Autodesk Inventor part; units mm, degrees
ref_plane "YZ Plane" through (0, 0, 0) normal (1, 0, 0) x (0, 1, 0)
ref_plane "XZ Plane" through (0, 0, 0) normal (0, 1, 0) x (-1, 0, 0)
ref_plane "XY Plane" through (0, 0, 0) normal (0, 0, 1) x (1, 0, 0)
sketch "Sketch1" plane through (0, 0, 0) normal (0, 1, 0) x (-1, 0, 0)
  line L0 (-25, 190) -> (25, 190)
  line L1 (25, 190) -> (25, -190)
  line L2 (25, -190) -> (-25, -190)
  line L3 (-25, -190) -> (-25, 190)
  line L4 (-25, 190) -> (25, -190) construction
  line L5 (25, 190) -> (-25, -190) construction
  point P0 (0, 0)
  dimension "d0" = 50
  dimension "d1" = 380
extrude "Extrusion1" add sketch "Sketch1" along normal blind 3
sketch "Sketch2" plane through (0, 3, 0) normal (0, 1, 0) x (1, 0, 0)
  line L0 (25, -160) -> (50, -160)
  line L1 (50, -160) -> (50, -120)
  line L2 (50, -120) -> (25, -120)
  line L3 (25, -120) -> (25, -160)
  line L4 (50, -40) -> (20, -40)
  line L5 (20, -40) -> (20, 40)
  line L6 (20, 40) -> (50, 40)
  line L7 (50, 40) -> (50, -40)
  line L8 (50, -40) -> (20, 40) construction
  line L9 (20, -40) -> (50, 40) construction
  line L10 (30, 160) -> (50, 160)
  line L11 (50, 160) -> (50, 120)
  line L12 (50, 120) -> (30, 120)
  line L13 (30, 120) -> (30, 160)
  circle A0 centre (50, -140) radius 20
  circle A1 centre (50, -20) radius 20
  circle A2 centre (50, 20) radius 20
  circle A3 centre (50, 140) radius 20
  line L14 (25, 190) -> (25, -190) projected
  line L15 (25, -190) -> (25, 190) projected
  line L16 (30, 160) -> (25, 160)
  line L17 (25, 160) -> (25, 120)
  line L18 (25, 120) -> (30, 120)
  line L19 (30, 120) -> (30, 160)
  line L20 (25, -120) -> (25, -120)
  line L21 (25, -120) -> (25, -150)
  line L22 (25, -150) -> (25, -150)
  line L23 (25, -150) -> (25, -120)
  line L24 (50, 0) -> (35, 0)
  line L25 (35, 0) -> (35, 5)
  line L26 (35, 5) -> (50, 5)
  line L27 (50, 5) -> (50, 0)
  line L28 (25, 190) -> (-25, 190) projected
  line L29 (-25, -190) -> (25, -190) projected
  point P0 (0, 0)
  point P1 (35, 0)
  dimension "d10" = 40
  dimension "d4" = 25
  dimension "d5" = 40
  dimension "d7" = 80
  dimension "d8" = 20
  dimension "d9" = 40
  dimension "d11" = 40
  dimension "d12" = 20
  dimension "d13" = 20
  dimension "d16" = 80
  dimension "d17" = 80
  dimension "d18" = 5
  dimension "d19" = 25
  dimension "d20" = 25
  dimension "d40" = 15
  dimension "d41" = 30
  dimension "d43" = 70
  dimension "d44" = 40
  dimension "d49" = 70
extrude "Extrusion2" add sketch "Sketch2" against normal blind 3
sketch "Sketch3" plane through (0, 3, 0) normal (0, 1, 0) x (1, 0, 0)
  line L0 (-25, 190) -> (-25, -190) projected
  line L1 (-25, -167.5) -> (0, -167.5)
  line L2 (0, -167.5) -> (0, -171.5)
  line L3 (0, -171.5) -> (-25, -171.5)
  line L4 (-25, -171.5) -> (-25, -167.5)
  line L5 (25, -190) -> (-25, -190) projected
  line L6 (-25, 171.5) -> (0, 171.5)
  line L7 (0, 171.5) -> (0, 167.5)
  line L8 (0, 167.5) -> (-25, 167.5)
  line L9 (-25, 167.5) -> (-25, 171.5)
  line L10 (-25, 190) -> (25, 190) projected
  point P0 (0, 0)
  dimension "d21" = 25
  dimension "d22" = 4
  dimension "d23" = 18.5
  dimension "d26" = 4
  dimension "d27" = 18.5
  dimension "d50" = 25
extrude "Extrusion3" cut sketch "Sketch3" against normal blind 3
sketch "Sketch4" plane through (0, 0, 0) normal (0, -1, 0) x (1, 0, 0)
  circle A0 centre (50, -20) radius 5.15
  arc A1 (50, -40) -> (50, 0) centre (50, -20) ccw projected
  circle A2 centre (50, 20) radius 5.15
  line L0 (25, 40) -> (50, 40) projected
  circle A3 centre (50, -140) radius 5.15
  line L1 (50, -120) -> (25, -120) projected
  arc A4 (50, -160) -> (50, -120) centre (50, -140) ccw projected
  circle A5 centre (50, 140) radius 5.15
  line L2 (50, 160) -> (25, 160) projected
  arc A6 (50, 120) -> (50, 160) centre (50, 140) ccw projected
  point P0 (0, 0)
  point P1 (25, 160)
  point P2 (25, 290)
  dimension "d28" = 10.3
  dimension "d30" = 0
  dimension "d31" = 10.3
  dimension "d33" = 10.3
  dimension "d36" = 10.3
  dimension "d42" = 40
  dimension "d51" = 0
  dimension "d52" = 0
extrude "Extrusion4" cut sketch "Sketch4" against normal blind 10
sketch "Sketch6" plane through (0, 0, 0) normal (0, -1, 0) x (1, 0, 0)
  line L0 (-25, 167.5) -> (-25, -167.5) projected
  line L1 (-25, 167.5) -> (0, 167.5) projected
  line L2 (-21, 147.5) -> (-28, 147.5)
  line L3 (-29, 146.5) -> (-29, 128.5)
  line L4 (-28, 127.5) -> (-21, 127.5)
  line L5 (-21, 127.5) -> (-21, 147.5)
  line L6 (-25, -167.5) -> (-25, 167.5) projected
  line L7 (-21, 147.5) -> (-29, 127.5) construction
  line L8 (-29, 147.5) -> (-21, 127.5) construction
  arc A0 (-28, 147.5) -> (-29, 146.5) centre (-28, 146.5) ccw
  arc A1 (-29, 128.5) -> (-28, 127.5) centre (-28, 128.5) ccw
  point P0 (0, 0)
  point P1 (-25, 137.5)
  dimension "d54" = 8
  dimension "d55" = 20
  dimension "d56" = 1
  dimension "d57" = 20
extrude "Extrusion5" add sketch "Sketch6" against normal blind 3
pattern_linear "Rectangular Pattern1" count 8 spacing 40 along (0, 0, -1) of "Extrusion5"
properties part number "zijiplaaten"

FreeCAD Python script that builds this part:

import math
import FreeCAD as App
import Part
import Sketcher
from FreeCAD import Vector

doc = App.newDocument("Part")
body = doc.addObject("PartDesign::Body", "Body")

sketch1 = body.newObject("Sketcher::SketchObject", "Sketch")
sketch1.AttachmentSupport = (doc.getObject("XZ_Plane"), [""])
sketch1.MapMode = "FlatFace"
sketch1.addGeometry([
    Part.LineSegment(Vector(-25, 190, 0), Vector(25, 190, 0)),
    Part.LineSegment(Vector(25, 190, 0), Vector(25, -190, 0)),
    Part.LineSegment(Vector(25, -190, 0), Vector(-25, -190, 0)),
    Part.LineSegment(Vector(-25, -190, 0), Vector(-25, 190, 0)),
], False)
sketch1.addConstraint([
    Sketcher.Constraint("Coincident", 0, 2, 1, 1),
    Sketcher.Constraint("Coincident", 1, 2, 2, 1),
    Sketcher.Constraint("Coincident", 2, 2, 3, 1),
    Sketcher.Constraint("Coincident", 3, 2, 0, 1),
    Sketcher.Constraint("Horizontal", 0),
    Sketcher.Constraint("Vertical", 1),
    Sketcher.Constraint("Horizontal", 2),
    Sketcher.Constraint("Vertical", 3),
    Sketcher.Constraint("Symmetric", 0, 2, 2, 2, -1, 1),
    Sketcher.Constraint("DistanceX", 0, 1, 0, 2, 50.0),
    Sketcher.Constraint("DistanceY", 1, 2, 1, 1, 380.0),
])
pad1 = body.newObject("PartDesign::Pad", "Pad")
pad1.Profile = sketch1
pad1.Length = 3
pad1.Reversed = True

sketch2 = body.newObject("Sketcher::SketchObject", "Sketch001")
sketch2.AttachmentSupport = (doc.getObject("XZ_Plane"), [""])
sketch2.MapMode = "FlatFace"
sketch2.AttachmentOffset = App.Placement(Vector(0, 0, -3), App.Rotation())
sketch2.addGeometry([
    Part.LineSegment(Vector(25, 160, 0), Vector(50, 160, 0)),
    Part.ArcOfCircle(Part.Circle(Vector(50, 140, 0), Vector(0, 0, 1), 20), math.radians(-90), math.radians(90)),
    Part.LineSegment(Vector(50, 120, 0), Vector(25, 120, 0)),
    Part.LineSegment(Vector(25, 120, 0), Vector(25, 160, 0)),
    Part.LineSegment(Vector(25, -160, 0), Vector(25, -120, 0)),
    Part.LineSegment(Vector(25, -120, 0), Vector(50, -120, 0)),
    Part.ArcOfCircle(Part.Circle(Vector(50, -140, 0), Vector(0, 0, 1), 20), math.radians(-90), math.radians(90)),
    Part.LineSegment(Vector(50, -160, 0), Vector(25, -160, 0)),
    Part.LineSegment(Vector(20, 40, 0), Vector(50, 40, 0)),
    Part.ArcOfCircle(Part.Circle(Vector(50, 20, 0), Vector(0, 0, 1), 20), math.radians(-90), math.radians(90)),
    Part.ArcOfCircle(Part.Circle(Vector(50, -20, 0), Vector(0, 0, 1), 20), math.radians(-90), math.radians(90)),
    Part.LineSegment(Vector(50, -40, 0), Vector(20, -40, 0)),
    Part.LineSegment(Vector(20, -40, 0), Vector(20, 40, 0)),
], False)
sketch2.addConstraint([
    Sketcher.Constraint("Tangent", 0, 2, 1, 2),
    Sketcher.Constraint("Tangent", 1, 1, 2, 1),
    Sketcher.Constraint("Coincident", 2, 2, 3, 1),
    Sketcher.Constraint("Coincident", 3, 2, 0, 1),
    Sketcher.Constraint("Coincident", 4, 2, 5, 1),
    Sketcher.Constraint("Tangent", 5, 2, 6, 2),
    Sketcher.Constraint("Tangent", 6, 1, 7, 1),
    Sketcher.Constraint("Coincident", 7, 2, 4, 1),
    Sketcher.Constraint("Tangent", 8, 2, 9, 2),
    Sketcher.Constraint("Tangent", 9, 1, 10, 2),
    Sketcher.Constraint("Tangent", 10, 1, 11, 1),
    Sketcher.Constraint("Coincident", 11, 2, 12, 1),
    Sketcher.Constraint("Coincident", 12, 2, 8, 1),
    Sketcher.Constraint("Horizontal", 0),
    Sketcher.Constraint("Horizontal", 2),
    Sketcher.Constraint("Vertical", 3),
    Sketcher.Constraint("Vertical", 4),
    Sketcher.Constraint("Horizontal", 5),
    Sketcher.Constraint("Horizontal", 7),
    Sketcher.Constraint("Horizontal", 8),
    Sketcher.Constraint("Horizontal", 11),
    Sketcher.Constraint("Vertical", 12),
    Sketcher.Constraint("Equal", 1, 6),
    Sketcher.Constraint("Equal", 6, 9),
    Sketcher.Constraint("Equal", 9, 10),
    Sketcher.Constraint("Symmetric", 1, 3, 6, 3, -1),
    Sketcher.Constraint("Symmetric", 9, 3, 10, 3, -1),
    Sketcher.Constraint("Vertical", 6, 3, 9, 3),
    Sketcher.Constraint("Vertical", 3, 2, 4, 2),
    Sketcher.Constraint("Radius", 1, 20.0),
    Sketcher.Constraint("DistanceX", 0, 1, 0, 2, 25.0),
    Sketcher.Constraint("DistanceX", 8, 1, 8, 2, 30.0),
    Sketcher.Constraint("DistanceX", -1, 1, 2, 2, 25.0),
    Sketcher.Constraint("DistanceY", 8, 2, 1, 1, 80.0),
])
pad2 = body.newObject("PartDesign::Pad", "Pad001")
pad2.Profile = sketch2
pad2.Length = 3

sketch3 = body.newObject("Sketcher::SketchObject", "Sketch002")
sketch3.AttachmentSupport = (doc.getObject("XZ_Plane"), [""])
sketch3.MapMode = "FlatFace"
sketch3.AttachmentOffset = App.Placement(Vector(0, 0, -3), App.Rotation())
sketch3.addGeometry([
    Part.LineSegment(Vector(0, -171.5, 0), Vector(-25, -171.5, 0)),
    Part.LineSegment(Vector(-25, -171.5, 0), Vector(-25, -167.5, 0)),
    Part.LineSegment(Vector(-25, -167.5, 0), Vector(0, -167.5, 0)),
    Part.LineSegment(Vector(0, -167.5, 0), Vector(0, -171.5, 0)),
    Part.LineSegment(Vector(0, 167.5, 0), Vector(-25, 167.5, 0)),
    Part.LineSegment(Vector(-25, 167.5, 0), Vector(-25, 171.5, 0)),
    Part.LineSegment(Vector(-25, 171.5, 0), Vector(0, 171.5, 0)),
    Part.LineSegment(Vector(0, 171.5, 0), Vector(0, 167.5, 0)),
], False)
sketch3.addConstraint([
    Sketcher.Constraint("Coincident", 0, 2, 1, 1),
    Sketcher.Constraint("Coincident", 1, 2, 2, 1),
    Sketcher.Constraint("Coincident", 2, 2, 3, 1),
    Sketcher.Constraint("Coincident", 3, 2, 0, 1),
    Sketcher.Constraint("Coincident", 4, 2, 5, 1),
    Sketcher.Constraint("Coincident", 5, 2, 6, 1),
    Sketcher.Constraint("Coincident", 6, 2, 7, 1),
    Sketcher.Constraint("Coincident", 7, 2, 4, 1),
    Sketcher.Constraint("Horizontal", 0),
    Sketcher.Constraint("Vertical", 1),
    Sketcher.Constraint("Horizontal", 2),
    Sketcher.Constraint("Vertical", 3),
    Sketcher.Constraint("Horizontal", 4),
    Sketcher.Constraint("Vertical", 5),
    Sketcher.Constraint("Horizontal", 6),
    Sketcher.Constraint("Vertical", 7),
    Sketcher.Constraint("Symmetric", 3, 2, 6, 2, -1, 1),
    Sketcher.Constraint("Symmetric", 1, 2, 4, 2, -1),
    Sketcher.Constraint("PointOnObject", 2, 2, -2),
    Sketcher.Constraint("DistanceX", 0, 2, 0, 1, 25.0),
    Sketcher.Constraint("DistanceY", 1, 1, 1, 2, 4.0),
    Sketcher.Constraint("DistanceY", 1, 2, 4, 2, 335.0),
])
pocket1 = body.newObject("PartDesign::Pocket", "Pocket")
pocket1.Profile = sketch3
pocket1.Length = 3
pocket1.Reversed = True

sketch4 = body.newObject("Sketcher::SketchObject", "Sketch003")
sketch4.AttachmentSupport = (doc.getObject("XZ_Plane"), [""])
sketch4.MapMode = "FlatFace"
sketch4.addGeometry([
    Part.Circle(Vector(50, -20, 0), Vector(0, 0, 1), 5),
    Part.Circle(Vector(50, 20, 0), Vector(0, 0, 1), 5),
    Part.Circle(Vector(50, -140, 0), Vector(0, 0, 1), 5),
    Part.Circle(Vector(50, 140, 0), Vector(0, 0, 1), 5),
], False)
sketch4.addConstraint([
    Sketcher.Constraint("Equal", 0, 1),
    Sketcher.Constraint("Equal", 1, 2),
    Sketcher.Constraint("Equal", 2, 3),
    Sketcher.Constraint("Symmetric", 0, 3, 1, 3, -1),
    Sketcher.Constraint("Symmetric", 2, 3, 3, 3, -1),
    Sketcher.Constraint("Vertical", 1, 3, 2, 3),
    Sketcher.Constraint("Diameter", 0, 10.3),
    Sketcher.Constraint("DistanceY", 0, 3, 1, 3, 40.0),
    Sketcher.Constraint("DistanceX", -1, 1, 0, 3, 50.0),
    Sketcher.Constraint("DistanceY", 2, 3, -1, 1, 140.0),
])
pocket2 = body.newObject("PartDesign::Pocket", "Pocket001")
pocket2.Profile = sketch4
pocket2.Length = 10

sketch5 = body.newObject("Sketcher::SketchObject", "Sketch004")
sketch5.AttachmentSupport = (doc.getObject("XZ_Plane"), [""])
sketch5.MapMode = "FlatFace"
sketch5.addGeometry([
    Part.LineSegment(Vector(-21, 147.5, 0), Vector(-28, 147.5, 0)),
    Part.ArcOfCircle(Part.Circle(Vector(-28, 146.5, 0), Vector(0, 0, 1), 1), math.radians(90), math.radians(180)),
    Part.LineSegment(Vector(-29, 146.5, 0), Vector(-29, 128.5, 0)),
    Part.ArcOfCircle(Part.Circle(Vector(-28, 128.5, 0), Vector(0, 0, 1), 1), math.radians(180), math.radians(270)),
    Part.LineSegment(Vector(-28, 127.5, 0), Vector(-21, 127.5, 0)),
    Part.LineSegment(Vector(-21, 127.5, 0), Vector(-21, 147.5, 0)),
], False)
sketch5.addConstraint([
    Sketcher.Constraint("Tangent", 0, 2, 1, 1),
    Sketcher.Constraint("Tangent", 1, 2, 2, 1),
    Sketcher.Constraint("Tangent", 2, 2, 3, 1),
    Sketcher.Constraint("Tangent", 3, 2, 4, 1),
    Sketcher.Constraint("Coincident", 4, 2, 5, 1),
    Sketcher.Constraint("Coincident", 5, 2, 0, 1),
    Sketcher.Constraint("Horizontal", 0),
    Sketcher.Constraint("Vertical", 2),
    Sketcher.Constraint("Horizontal", 4),
    Sketcher.Constraint("Vertical", 5),
    Sketcher.Constraint("Equal", 1, 3),
    Sketcher.Constraint("Radius", 1, 1.0),
    Sketcher.Constraint("DistanceY", 5, 1, 5, 2, 20.0),
    Sketcher.Constraint("DistanceX", 2, 2, 4, 2, 8.0),
    Sketcher.Constraint("DistanceX", 1, 3, -1, 1, 28.0),
    Sketcher.Constraint("DistanceY", -1, 1, 1, 3, 146.5),
])
pad3 = body.newObject("PartDesign::Pad", "Pad002")
pad3.Profile = sketch5
pad3.Length = 3
pad3.Reversed = True
doc.recompute()

linearpattern = body.newObject("PartDesign::LinearPattern", "LinearPattern")
linearpattern.Originals = [pad3]
linearpattern.Direction = (doc.getObject("Z_Axis"), [""])
linearpattern.Mode = "offset"
linearpattern.Offset = 40
linearpattern.Occurrences = 8
linearpattern.Reversed = True
body.Tip = linearpattern

doc.recompute()
